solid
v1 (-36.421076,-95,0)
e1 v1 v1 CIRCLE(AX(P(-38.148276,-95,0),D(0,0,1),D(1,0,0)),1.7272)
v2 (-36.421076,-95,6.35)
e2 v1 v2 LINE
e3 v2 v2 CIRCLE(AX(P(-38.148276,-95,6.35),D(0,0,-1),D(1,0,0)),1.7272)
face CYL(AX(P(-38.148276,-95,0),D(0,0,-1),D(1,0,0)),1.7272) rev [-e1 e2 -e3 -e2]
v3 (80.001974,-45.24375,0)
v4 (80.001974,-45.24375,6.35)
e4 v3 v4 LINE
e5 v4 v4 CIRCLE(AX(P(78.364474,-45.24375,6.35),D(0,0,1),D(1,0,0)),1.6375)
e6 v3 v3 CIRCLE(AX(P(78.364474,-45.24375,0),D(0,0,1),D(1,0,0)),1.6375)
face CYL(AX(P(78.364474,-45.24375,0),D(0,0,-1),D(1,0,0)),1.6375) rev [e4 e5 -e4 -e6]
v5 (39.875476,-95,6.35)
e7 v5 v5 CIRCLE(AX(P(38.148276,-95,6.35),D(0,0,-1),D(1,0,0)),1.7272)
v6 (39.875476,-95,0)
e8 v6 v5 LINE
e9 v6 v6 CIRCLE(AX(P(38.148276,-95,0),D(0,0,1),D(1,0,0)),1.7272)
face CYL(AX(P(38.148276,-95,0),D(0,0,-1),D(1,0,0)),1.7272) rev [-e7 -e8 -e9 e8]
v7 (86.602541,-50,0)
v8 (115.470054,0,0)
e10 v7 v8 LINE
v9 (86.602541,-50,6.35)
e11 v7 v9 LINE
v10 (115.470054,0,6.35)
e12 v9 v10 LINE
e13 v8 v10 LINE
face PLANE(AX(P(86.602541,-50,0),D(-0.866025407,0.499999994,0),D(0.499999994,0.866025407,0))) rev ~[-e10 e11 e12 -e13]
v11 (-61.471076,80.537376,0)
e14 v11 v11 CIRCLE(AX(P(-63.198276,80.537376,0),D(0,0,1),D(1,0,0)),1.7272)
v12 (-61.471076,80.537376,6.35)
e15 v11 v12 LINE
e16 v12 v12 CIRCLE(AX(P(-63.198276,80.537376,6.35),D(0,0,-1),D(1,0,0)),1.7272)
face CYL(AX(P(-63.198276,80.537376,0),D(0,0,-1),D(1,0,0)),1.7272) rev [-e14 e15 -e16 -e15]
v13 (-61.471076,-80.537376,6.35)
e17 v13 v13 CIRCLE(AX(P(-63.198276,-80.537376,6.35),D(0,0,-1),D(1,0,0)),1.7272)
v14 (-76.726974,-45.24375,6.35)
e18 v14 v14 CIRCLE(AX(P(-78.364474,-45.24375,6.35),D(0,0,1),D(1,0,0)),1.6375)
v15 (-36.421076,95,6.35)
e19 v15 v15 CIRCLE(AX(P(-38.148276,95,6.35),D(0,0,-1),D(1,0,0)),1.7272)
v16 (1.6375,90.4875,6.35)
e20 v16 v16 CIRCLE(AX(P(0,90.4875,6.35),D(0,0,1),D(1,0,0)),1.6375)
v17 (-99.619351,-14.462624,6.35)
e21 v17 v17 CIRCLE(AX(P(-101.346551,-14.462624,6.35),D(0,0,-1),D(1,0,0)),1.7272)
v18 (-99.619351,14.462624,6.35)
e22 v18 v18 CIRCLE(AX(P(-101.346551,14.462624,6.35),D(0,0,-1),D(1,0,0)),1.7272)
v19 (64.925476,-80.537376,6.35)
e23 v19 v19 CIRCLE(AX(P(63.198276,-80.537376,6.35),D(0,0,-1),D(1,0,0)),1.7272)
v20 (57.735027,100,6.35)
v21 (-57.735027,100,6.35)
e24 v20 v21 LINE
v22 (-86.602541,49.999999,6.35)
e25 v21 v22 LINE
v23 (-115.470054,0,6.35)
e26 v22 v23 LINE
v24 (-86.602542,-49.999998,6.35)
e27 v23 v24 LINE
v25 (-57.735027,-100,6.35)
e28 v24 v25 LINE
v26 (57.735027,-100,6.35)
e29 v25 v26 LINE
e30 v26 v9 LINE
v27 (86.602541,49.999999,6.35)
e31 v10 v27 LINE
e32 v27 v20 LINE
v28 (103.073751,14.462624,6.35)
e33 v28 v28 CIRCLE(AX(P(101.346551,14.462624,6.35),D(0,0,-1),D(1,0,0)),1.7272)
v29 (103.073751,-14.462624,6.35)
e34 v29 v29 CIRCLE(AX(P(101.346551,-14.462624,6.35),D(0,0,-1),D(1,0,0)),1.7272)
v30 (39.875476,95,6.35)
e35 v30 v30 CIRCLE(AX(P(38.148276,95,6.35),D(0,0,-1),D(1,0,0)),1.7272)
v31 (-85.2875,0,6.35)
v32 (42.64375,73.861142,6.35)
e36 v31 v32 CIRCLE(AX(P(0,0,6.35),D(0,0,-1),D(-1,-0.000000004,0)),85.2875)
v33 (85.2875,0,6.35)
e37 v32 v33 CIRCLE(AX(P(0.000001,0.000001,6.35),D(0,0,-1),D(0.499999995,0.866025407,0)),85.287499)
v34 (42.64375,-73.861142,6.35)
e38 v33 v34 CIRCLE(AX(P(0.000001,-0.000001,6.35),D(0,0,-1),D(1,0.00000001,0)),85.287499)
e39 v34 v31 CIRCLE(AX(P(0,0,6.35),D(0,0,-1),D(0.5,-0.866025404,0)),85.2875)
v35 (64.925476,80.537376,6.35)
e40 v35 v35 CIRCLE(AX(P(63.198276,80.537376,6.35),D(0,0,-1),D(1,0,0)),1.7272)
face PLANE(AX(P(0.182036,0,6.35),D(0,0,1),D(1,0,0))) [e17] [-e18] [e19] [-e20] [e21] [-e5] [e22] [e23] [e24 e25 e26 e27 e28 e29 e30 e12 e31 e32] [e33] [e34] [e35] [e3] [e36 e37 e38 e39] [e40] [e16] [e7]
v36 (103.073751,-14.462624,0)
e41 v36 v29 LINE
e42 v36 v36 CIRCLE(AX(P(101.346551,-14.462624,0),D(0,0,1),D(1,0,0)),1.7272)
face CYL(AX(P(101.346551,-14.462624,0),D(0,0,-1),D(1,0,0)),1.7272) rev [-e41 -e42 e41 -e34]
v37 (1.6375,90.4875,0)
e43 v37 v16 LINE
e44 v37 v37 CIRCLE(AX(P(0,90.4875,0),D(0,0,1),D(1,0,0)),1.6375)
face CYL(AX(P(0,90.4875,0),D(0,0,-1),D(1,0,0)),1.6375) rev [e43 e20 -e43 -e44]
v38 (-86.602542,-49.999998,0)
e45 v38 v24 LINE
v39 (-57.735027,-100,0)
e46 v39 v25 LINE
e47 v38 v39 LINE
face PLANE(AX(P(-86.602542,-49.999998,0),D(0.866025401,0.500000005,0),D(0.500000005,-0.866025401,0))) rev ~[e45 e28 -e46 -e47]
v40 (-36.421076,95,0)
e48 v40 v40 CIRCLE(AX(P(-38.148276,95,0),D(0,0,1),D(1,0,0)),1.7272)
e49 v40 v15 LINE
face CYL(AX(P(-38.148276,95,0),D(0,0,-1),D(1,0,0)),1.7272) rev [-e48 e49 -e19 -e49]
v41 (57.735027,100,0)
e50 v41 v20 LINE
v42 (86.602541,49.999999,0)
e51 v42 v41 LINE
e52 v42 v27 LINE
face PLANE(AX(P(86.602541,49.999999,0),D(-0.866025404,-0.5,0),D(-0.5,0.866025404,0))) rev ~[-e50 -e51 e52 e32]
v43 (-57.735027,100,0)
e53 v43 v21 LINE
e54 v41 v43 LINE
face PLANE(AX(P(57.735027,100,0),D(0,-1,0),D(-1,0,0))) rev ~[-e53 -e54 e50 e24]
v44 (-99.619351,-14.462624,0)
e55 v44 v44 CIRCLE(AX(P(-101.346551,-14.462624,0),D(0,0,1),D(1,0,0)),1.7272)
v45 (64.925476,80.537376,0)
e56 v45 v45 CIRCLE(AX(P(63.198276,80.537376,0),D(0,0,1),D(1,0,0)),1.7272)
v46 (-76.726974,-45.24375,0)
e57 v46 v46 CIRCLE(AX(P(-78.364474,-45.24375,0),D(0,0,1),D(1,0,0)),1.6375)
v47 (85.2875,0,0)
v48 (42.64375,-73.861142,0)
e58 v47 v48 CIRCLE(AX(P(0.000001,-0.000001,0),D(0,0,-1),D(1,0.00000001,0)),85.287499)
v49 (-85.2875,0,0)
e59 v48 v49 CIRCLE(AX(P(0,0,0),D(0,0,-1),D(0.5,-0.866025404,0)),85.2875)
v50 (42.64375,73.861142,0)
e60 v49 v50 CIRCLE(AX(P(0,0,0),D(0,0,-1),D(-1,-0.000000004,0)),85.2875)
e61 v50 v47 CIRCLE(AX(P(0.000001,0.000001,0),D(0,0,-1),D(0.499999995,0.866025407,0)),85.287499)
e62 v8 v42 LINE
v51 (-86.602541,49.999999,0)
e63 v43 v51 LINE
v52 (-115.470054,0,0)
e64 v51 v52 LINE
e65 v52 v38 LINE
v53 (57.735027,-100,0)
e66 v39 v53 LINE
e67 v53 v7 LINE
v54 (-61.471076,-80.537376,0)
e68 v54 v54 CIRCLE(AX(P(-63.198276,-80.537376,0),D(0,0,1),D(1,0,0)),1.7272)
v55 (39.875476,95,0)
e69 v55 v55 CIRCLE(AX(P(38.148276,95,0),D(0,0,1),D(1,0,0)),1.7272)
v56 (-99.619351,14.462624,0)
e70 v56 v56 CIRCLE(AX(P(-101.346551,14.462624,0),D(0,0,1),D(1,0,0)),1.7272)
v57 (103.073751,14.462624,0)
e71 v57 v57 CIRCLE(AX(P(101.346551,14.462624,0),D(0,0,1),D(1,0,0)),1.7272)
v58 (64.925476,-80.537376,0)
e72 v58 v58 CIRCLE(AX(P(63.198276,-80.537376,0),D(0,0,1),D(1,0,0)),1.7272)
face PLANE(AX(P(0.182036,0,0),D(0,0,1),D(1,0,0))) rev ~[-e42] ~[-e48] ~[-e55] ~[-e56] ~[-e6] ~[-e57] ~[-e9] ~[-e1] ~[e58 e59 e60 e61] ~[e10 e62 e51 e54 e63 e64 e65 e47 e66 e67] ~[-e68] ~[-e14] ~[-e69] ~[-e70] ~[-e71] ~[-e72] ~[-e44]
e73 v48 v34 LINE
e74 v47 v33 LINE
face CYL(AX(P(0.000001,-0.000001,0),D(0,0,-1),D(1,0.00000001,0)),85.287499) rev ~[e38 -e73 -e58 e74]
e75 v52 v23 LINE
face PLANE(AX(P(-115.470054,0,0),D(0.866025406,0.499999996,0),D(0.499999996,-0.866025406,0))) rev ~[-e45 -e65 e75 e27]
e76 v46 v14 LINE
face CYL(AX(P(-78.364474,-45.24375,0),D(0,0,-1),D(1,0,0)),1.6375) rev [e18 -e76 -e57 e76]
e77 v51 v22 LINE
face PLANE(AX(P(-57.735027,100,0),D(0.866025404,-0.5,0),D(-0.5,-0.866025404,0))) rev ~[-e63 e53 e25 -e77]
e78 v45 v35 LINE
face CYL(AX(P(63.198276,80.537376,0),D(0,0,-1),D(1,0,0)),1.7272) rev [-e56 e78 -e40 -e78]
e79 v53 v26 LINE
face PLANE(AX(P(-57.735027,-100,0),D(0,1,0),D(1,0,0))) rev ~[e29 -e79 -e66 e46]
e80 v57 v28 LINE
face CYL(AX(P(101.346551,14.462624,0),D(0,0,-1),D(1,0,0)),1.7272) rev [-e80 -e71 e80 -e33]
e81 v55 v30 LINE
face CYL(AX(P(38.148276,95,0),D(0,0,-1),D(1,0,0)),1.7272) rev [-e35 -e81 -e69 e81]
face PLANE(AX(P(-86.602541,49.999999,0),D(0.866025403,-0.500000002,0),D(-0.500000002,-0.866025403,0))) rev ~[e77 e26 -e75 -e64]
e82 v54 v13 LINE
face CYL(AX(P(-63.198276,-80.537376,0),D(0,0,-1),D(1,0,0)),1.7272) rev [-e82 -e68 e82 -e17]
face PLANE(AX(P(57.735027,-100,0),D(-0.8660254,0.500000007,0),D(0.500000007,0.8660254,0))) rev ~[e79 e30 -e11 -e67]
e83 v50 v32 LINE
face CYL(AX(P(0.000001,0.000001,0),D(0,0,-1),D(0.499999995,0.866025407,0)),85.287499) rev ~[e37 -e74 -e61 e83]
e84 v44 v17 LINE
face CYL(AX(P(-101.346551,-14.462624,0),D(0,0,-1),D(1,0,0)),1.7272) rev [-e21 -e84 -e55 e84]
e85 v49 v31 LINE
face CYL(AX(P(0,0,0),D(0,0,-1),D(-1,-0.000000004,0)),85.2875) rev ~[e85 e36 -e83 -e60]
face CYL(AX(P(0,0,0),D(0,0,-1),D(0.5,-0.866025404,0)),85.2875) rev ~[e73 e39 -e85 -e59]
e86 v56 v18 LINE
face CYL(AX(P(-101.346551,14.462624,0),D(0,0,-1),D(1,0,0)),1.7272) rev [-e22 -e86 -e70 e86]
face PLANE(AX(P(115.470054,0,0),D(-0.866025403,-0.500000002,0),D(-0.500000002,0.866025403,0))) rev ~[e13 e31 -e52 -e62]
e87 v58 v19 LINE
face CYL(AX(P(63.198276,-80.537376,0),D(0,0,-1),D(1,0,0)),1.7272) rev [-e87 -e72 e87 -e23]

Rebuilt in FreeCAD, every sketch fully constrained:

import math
import FreeCAD as App
import Part
import Sketcher

V = App.Vector
Q = App.Units.Quantity


def add_polygon(sketch, points):
    """Adds a closed chain of lines whose ends are joined by coincident constraints."""
    first, n = sketch.GeometryCount, len(points)
    for a, b in zip(points, points[1:] + points[:1]):
        sketch.addGeometry(Part.LineSegment(App.Vector(*a, 0), App.Vector(*b, 0)), False)
    for i in range(n):
        sketch.addConstraint(Sketcher.Constraint("Coincident", first + i, 2, first + (i + 1) % n, 1))

doc = App.newDocument("Part")
body = doc.addObject("PartDesign::Body", "Body")

# Sketch on XY plane
sketch1 = body.newObject("Sketcher::SketchObject", "Sketch")
sketch1.AttachmentSupport = (doc.getObject("XY_Plane"), [""])
sketch1.MapMode = "FlatFace"
add_polygon(sketch1, [(86.6, -50), (115.5, 0), (86.6, 50), (57.7, 100), (-57.7, 100), (-86.6, 50), (-115.5, 0), (-86.6, -50), (-57.7, -100), (57.7, -100)])  # lines 0-9
sketch1.addGeometry(Part.Circle(V(-78.4, -45.2, 0), V(0, 0, 1), 1.6), False)  # 10
sketch1.addGeometry(Part.Circle(V(78.4, -45.2, 0), V(0, 0, 1), 1.6), False)  # 11
sketch1.addGeometry(Part.ArcOfCircle(Part.Circle(V(0, 0, 0), V(0, 0, 1), 85.3), math.radians(60), math.radians(180)), False)  # 12
sketch1.addGeometry(Part.ArcOfCircle(Part.Circle(V(0, 0, 0), V(0, 0, 1), 85.3), math.radians(0), math.radians(60)), False)  # 13
sketch1.addGeometry(Part.ArcOfCircle(Part.Circle(V(0, 0, 0), V(0, 0, 1), 85.3), math.radians(-60), math.radians(0)), False)  # 14
sketch1.addGeometry(Part.ArcOfCircle(Part.Circle(V(0, 0, 0), V(0, 0, 1), 85.3), math.radians(180), math.radians(300)), False)  # 15
sketch1.addGeometry(Part.Circle(V(0, 90.5, 0), V(0, 0, 1), 1.6), False)  # 16
sketch1.addConstraint(Sketcher.Constraint("Tangent", 12, 1, 13, 2))
sketch1.addConstraint(Sketcher.Constraint("Tangent", 13, 1, 14, 2))
sketch1.addConstraint(Sketcher.Constraint("Tangent", 14, 1, 15, 2))
sketch1.addConstraint(Sketcher.Constraint("Tangent", 15, 1, 12, 2))
sketch1.addConstraint(Sketcher.Constraint("Horizontal", 3))
sketch1.addConstraint(Sketcher.Constraint("Horizontal", 8))
sketch1.addConstraint(Sketcher.Constraint("Coincident", 12, 3, -1, 1))
sketch1.addConstraint(Sketcher.Constraint("Equal", 10, 11))
sketch1.addConstraint(Sketcher.Constraint("Equal", 12, 13))
sketch1.addConstraint(Sketcher.Constraint("Equal", 11, 16))
sketch1.addConstraint(Sketcher.Constraint("Symmetric", 0, 2, 5, 2, -1, 1))
sketch1.addConstraint(Sketcher.Constraint("Symmetric", 1, 2, 6, 2, -1, 1))
sketch1.addConstraint(Sketcher.Constraint("Symmetric", 2, 2, 7, 2, -1, 1))
sketch1.addConstraint(Sketcher.Constraint("Symmetric", 4, 2, 9, 2, -1, 1))
sketch1.addConstraint(Sketcher.Constraint("Symmetric", 10, 3, 11, 3, -2))
sketch1.addConstraint(Sketcher.Constraint("Symmetric", 1, 2, 4, 2, -2))
sketch1.addConstraint(Sketcher.Constraint("PointOnObject", 16, 3, -2))
sketch1.addConstraint(Sketcher.Constraint("PointOnObject", 0, 2, -1))
sketch1.addConstraint(Sketcher.Constraint("PointOnObject", 13, 1, -1))
sketch1.addConstraint(Sketcher.Constraint("PointOnObject", 15, 1, -1))
sketch1.addConstraint(Sketcher.Constraint("Parallel", 1, 2))
sketch1.addConstraint(Sketcher.Constraint("Parallel", 0, 4))
sketch1.addConstraint(Sketcher.Constraint("Parallel", 5, 9))
sketch1.addConstraint(Sketcher.Constraint("Vertical", 12, 1, 14, 1))
sketch1.addConstraint(Sketcher.Constraint("Equal", 0, 2))
sketch1.addConstraint(Sketcher.Constraint("Angle", 0, Q("60 deg")))
sketch1.addConstraint(Sketcher.Constraint("Diameter", 10, Q("3.275 mm")))
sketch1.addConstraint(Sketcher.Constraint("Radius", 12, Q("85.2875 mm")))
sketch1.addConstraint(Sketcher.Constraint("DistanceY", 10, 3, -1, 1, Q("1.78125 in")))
sketch1.addConstraint(Sketcher.Constraint("DistanceY", -1, 1, 16, 3, Q("3.5625 in")))
sketch1.addConstraint(Sketcher.Constraint("DistanceY", -1, 1, 1, 2, Q("49.999999 mm")))
sketch1.addConstraint(Sketcher.Constraint("DistanceX", 3, 2, 3, 1, Q("115.470054 mm")))
sketch1.addConstraint(Sketcher.Constraint("DistanceX", -1, 1, 12, 1, Q("42.64375 mm")))
sketch1.addConstraint(Sketcher.Constraint("DistanceX", 10, 3, 11, 3, Q("156.728948 mm")))
pad1 = body.newObject("PartDesign::Pad", "Pad")
pad1.Profile = sketch1
pad1.Length = Q("0.25 in")

# Sketch on XY plane
sketch2 = body.newObject("Sketcher::SketchObject", "Sketch001")
sketch2.AttachmentSupport = (doc.getObject("XY_Plane"), [""])
sketch2.MapMode = "FlatFace"
sketch2.addGeometry(Part.Circle(V(38.1, 95, 0), V(0, 0, 1), 1.7), False)
sketch2.addGeometry(Part.Circle(V(-38.1, 95, 0), V(0, 0, 1), 1.7), False)
sketch2.addGeometry(Part.Circle(V(-63.2, 80.5, 0), V(0, 0, 1), 1.7), False)
sketch2.addGeometry(Part.Circle(V(-101.3, 14.5, 0), V(0, 0, 1), 1.7), False)
sketch2.addGeometry(Part.Circle(V(-101.3, -14.5, 0), V(0, 0, 1), 1.7), False)
sketch2.addGeometry(Part.Circle(V(-63.2, -80.5, 0), V(0, 0, 1), 1.7), False)
sketch2.addGeometry(Part.Circle(V(-38.1, -95, 0), V(0, 0, 1), 1.7), False)
sketch2.addGeometry(Part.Circle(V(38.1, -95, 0), V(0, 0, 1), 1.7), False)
sketch2.addGeometry(Part.Circle(V(63.2, -80.5, 0), V(0, 0, 1), 1.7), False)
sketch2.addGeometry(Part.Circle(V(101.3, -14.5, 0), V(0, 0, 1), 1.7), False)
sketch2.addGeometry(Part.Circle(V(101.3, 14.5, 0), V(0, 0, 1), 1.7), False)
sketch2.addGeometry(Part.Circle(V(63.2, 80.5, 0), V(0, 0, 1), 1.7), False)
sketch2.addConstraint(Sketcher.Constraint("Equal", 0, 1))
sketch2.addConstraint(Sketcher.Constraint("Equal", 1, 2))
sketch2.addConstraint(Sketcher.Constraint("Equal", 2, 3))
sketch2.addConstraint(Sketcher.Constraint("Equal", 3, 4))
sketch2.addConstraint(Sketcher.Constraint("Equal", 4, 5))
sketch2.addConstraint(Sketcher.Constraint("Equal", 5, 6))
sketch2.addConstraint(Sketcher.Constraint("Equal", 6, 7))
sketch2.addConstraint(Sketcher.Constraint("Equal", 7, 8))
sketch2.addConstraint(Sketcher.Constraint("Equal", 8, 9))
sketch2.addConstraint(Sketcher.Constraint("Equal", 9, 10))
sketch2.addConstraint(Sketcher.Constraint("Equal", 10, 11))
sketch2.addConstraint(Sketcher.Constraint("Symmetric", 0, 3, 6, 3, -1, 1))
sketch2.addConstraint(Sketcher.Constraint("Symmetric", 1, 3, 7, 3, -1, 1))
sketch2.addConstraint(Sketcher.Constraint("Symmetric", 2, 3, 8, 3, -1, 1))
sketch2.addConstraint(Sketcher.Constraint("Symmetric", 3, 3, 9, 3, -1, 1))
sketch2.addConstraint(Sketcher.Constraint("Symmetric", 4, 3, 10, 3, -1, 1))
sketch2.addConstraint(Sketcher.Constraint("Symmetric", 5, 3, 11, 3, -1, 1))
sketch2.addConstraint(Sketcher.Constraint("Symmetric", 0, 3, 1, 3, -2))
sketch2.addConstraint(Sketcher.Constraint("Symmetric", 5, 3, 8, 3, -2))
sketch2.addConstraint(Sketcher.Constraint("Symmetric", 4, 3, 9, 3, -2))
sketch2.addConstraint(Sketcher.Constraint("Diameter", 0, Q("0.136 in")))
sketch2.addConstraint(Sketcher.Constraint("DistanceY", -1, 1, 0, 3, Q("95 mm")))
sketch2.addConstraint(Sketcher.Constraint("DistanceX", 2, 3, 1, 3, Q("25.05 mm")))
sketch2.addConstraint(Sketcher.Constraint("DistanceY", 4, 3, 2, 3, Q("95 mm")))
sketch2.addConstraint(Sketcher.Constraint("DistanceX", 3, 3, -1, 1, Q("101.346551 mm")))
sketch2.addConstraint(Sketcher.Constraint("DistanceY", 3, 3, 2, 3, Q("66.074752 mm")))
sketch2.addConstraint(Sketcher.Constraint("DistanceX", 5, 3, 8, 3, Q("126.396552 mm")))
pocket1 = body.newObject("PartDesign::Pocket", "Pocket")
pocket1.Profile = sketch2
pocket1.Length = 25
pocket1.Reversed = True

doc.recompute()
